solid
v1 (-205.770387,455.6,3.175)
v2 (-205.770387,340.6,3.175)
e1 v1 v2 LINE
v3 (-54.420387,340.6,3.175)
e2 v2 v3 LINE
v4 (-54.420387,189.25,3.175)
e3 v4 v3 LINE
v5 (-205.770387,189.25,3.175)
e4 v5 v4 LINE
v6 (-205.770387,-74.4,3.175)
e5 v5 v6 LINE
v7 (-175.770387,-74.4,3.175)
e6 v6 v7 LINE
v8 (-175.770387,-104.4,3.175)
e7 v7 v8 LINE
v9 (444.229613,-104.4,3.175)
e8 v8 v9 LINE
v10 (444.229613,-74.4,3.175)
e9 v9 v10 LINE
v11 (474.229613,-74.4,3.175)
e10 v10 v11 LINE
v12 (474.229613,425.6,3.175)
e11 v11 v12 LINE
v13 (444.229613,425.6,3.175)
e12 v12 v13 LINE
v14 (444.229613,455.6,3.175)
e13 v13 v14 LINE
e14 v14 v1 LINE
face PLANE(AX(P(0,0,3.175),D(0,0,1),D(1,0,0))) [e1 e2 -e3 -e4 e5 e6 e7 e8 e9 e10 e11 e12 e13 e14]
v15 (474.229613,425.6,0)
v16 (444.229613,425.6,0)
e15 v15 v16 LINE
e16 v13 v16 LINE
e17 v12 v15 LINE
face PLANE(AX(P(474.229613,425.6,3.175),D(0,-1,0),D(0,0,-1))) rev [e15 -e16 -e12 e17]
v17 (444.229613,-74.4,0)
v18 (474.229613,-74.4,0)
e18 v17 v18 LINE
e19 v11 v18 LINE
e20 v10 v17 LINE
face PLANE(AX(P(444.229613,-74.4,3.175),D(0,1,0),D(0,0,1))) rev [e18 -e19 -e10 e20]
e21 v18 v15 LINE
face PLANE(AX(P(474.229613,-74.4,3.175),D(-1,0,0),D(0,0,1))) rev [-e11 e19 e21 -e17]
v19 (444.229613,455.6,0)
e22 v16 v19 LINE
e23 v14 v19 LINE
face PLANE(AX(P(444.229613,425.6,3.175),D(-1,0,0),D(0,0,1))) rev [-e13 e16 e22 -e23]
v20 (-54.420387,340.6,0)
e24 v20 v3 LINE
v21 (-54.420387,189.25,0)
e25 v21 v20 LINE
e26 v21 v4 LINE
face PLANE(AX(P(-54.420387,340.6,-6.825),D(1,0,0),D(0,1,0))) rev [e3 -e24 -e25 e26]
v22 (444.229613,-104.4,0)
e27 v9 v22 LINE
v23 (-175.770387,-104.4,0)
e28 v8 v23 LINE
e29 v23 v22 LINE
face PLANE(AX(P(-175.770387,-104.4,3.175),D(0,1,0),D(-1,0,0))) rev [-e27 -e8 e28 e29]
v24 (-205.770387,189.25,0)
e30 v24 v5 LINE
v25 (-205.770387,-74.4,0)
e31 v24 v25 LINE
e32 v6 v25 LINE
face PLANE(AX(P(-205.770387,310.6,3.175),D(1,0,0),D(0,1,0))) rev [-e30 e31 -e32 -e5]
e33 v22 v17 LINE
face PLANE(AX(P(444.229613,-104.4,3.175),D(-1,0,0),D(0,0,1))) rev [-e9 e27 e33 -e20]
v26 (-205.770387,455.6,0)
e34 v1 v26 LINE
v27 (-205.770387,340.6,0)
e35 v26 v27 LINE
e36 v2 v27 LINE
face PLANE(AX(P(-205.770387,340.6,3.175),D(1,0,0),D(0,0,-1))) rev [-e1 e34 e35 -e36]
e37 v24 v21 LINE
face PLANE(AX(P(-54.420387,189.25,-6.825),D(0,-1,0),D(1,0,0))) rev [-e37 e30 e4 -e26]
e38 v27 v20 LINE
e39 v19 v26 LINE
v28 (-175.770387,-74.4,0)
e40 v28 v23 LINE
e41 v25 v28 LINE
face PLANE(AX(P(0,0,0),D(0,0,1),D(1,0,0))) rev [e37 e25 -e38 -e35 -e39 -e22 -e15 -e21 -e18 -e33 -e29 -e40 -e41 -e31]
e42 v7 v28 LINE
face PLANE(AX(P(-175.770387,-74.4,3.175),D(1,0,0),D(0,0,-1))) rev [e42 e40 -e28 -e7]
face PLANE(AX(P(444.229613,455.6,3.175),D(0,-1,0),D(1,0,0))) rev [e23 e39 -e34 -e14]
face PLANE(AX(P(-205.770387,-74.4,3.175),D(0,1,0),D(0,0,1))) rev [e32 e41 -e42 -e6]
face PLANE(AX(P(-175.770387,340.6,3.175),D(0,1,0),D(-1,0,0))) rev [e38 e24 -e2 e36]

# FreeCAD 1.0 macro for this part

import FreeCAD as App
import Part
import Sketcher
from FreeCAD import Vector


def add_polygon(sketch, points):
    """Adds a closed chain of lines whose ends are joined by coincident constraints."""
    first, n = sketch.GeometryCount, len(points)
    for a, b in zip(points, points[1:] + points[:1]):
        sketch.addGeometry(Part.LineSegment(App.Vector(*a, 0), App.Vector(*b, 0)), False)
    for i in range(n):
        sketch.addConstraint(Sketcher.Constraint("Coincident", first + i, 2, first + (i + 1) % n, 1))

doc = App.newDocument("Part")
params = doc.addObject("Spreadsheet::Sheet", "Params")
for row, (alias, value) in enumerate([
    ("sketch1_width", "30 mm"),
    ("sketch1_width2", "620 mm"),
    ("sketch1_height", "385 mm"),
    ("sketch1_height2", "500 mm"),
    ("pad1_length", "3.175 mm"),
    ("sketch2_width", "30 mm"),
    ("sketch2_width2", "151.35 mm"),
    ("pocket1_length", "10 mm"),
], start=1):
    params.set(f"A{row}", alias)
    params.set(f"B{row}", "=" + value)
    params.setAlias(f"B{row}", alias)

body = doc.addObject("PartDesign::Body", "Body")

sketch1 = doc.addObject("Sketcher::SketchObject", "Sketch")
body.addObject(sketch1)
sketch1.AttachmentSupport = (doc.XY_Plane, [""])
sketch1.MapMode = "FlatFace"
add_polygon(sketch1, [(-206, 311), (-206, -74), (-176, -74), (-176, -104), (444, -104), (444, -74), (474, -74), (474, 426), (444, 426), (444, 456), (-206, 456), (-206, 341), (-176, 341), (-176, 311)])
sketch1.addConstraint(Sketcher.Constraint("Vertical", 0))
sketch1.addConstraint(Sketcher.Constraint("Horizontal", 1))
sketch1.addConstraint(Sketcher.Constraint("Vertical", 2))
sketch1.addConstraint(Sketcher.Constraint("Horizontal", 3))
sketch1.addConstraint(Sketcher.Constraint("Vertical", 4))
sketch1.addConstraint(Sketcher.Constraint("Horizontal", 5))
sketch1.addConstraint(Sketcher.Constraint("Vertical", 6))
sketch1.addConstraint(Sketcher.Constraint("Horizontal", 7))
sketch1.addConstraint(Sketcher.Constraint("Vertical", 8))
sketch1.addConstraint(Sketcher.Constraint("Horizontal", 9))
sketch1.addConstraint(Sketcher.Constraint("Vertical", 10))
sketch1.addConstraint(Sketcher.Constraint("Horizontal", 11))
sketch1.addConstraint(Sketcher.Constraint("Vertical", 12))
sketch1.addConstraint(Sketcher.Constraint("Horizontal", 13))
sketch1.addConstraint(Sketcher.Constraint("Horizontal", 1, 2, 4, 2))
sketch1.addConstraint(Sketcher.Constraint("Vertical", 4, 2, 7, 2))
sketch1.addConstraint(Sketcher.Constraint("Vertical", 0, 2, 9, 2))
sketch1.addConstraint(Sketcher.Constraint("Vertical", 2, 2, 11, 2))
sketch1.addConstraint(Sketcher.Constraint("Equal", 1, 5))
sketch1.addConstraint(Sketcher.Constraint("Equal", 13, 2))
sketch1.addConstraint(Sketcher.Constraint("Equal", 4, 8))
sketch1.addConstraint(Sketcher.Constraint("Equal", 8, 12))
sketch1.addConstraint(Sketcher.Constraint("DistanceX", 1, 1, 1, 2, 30.0))
sketch1.addConstraint(Sketcher.Constraint("DistanceX", 3, 1, 3, 2, 620.0))
sketch1.addConstraint(Sketcher.Constraint("DistanceY", 0, 2, 0, 1, 385.0))
sketch1.addConstraint(Sketcher.Constraint("DistanceY", 6, 1, 6, 2, 500.0))
sketch1.addConstraint(Sketcher.Constraint("DistanceY", 0, 2, -1, 1, 74.4))
sketch1.addConstraint(Sketcher.Constraint("DistanceX", 0, 2, -1, 1, 205.770387))
sketch1.setExpression("Constraints[36]", "Params.sketch1_width")
sketch1.setExpression("Constraints[37]", "Params.sketch1_width2")
sketch1.setExpression("Constraints[38]", "Params.sketch1_height")
sketch1.setExpression("Constraints[39]", "Params.sketch1_height2")
pad1 = doc.addObject("PartDesign::Pad", "Pad")
body.addObject(pad1)
pad1.Profile = sketch1
pad1.setExpression("Length", "Params.pad1_length")

sketch2 = doc.addObject("Sketcher::SketchObject", "Sketch001")
body.addObject(sketch2)
sketch2.AttachmentSupport = (doc.XY_Plane, [""])
sketch2.MapMode = "FlatFace"
sketch2.AttachmentOffset = App.Placement(Vector(0, 0, 3.175), App.Rotation())
add_polygon(sketch2, [(-176, 311), (-206, 311), (-206, 189), (-54, 189), (-54, 341), (-176, 341)])
sketch2.addConstraint(Sketcher.Constraint("Horizontal", 0))
sketch2.addConstraint(Sketcher.Constraint("Vertical", 1))
sketch2.addConstraint(Sketcher.Constraint("Horizontal", 2))
sketch2.addConstraint(Sketcher.Constraint("Vertical", 3))
sketch2.addConstraint(Sketcher.Constraint("Horizontal", 4))
sketch2.addConstraint(Sketcher.Constraint("Vertical", 5))
sketch2.addConstraint(Sketcher.Constraint("Equal", 4, 1))
sketch2.addConstraint(Sketcher.Constraint("Equal", 2, 3))
sketch2.addConstraint(Sketcher.Constraint("DistanceX", 0, 2, 0, 1, 30.0))
sketch2.addConstraint(Sketcher.Constraint("DistanceX", 2, 1, 2, 2, 151.35))
sketch2.addConstraint(Sketcher.Constraint("DistanceY", -1, 1, 0, 2, 310.6))
sketch2.addConstraint(Sketcher.Constraint("DistanceX", 0, 2, -1, 1, 205.770387))
sketch2.setExpression("Constraints[14]", "Params.sketch2_width")
sketch2.setExpression("Constraints[15]", "Params.sketch2_width2")
pocket1 = doc.addObject("PartDesign::Pocket", "Pocket")
body.addObject(pocket1)
pocket1.Profile = sketch2
pocket1.setExpression("Length", "Params.pocket1_length")

doc.recompute()
